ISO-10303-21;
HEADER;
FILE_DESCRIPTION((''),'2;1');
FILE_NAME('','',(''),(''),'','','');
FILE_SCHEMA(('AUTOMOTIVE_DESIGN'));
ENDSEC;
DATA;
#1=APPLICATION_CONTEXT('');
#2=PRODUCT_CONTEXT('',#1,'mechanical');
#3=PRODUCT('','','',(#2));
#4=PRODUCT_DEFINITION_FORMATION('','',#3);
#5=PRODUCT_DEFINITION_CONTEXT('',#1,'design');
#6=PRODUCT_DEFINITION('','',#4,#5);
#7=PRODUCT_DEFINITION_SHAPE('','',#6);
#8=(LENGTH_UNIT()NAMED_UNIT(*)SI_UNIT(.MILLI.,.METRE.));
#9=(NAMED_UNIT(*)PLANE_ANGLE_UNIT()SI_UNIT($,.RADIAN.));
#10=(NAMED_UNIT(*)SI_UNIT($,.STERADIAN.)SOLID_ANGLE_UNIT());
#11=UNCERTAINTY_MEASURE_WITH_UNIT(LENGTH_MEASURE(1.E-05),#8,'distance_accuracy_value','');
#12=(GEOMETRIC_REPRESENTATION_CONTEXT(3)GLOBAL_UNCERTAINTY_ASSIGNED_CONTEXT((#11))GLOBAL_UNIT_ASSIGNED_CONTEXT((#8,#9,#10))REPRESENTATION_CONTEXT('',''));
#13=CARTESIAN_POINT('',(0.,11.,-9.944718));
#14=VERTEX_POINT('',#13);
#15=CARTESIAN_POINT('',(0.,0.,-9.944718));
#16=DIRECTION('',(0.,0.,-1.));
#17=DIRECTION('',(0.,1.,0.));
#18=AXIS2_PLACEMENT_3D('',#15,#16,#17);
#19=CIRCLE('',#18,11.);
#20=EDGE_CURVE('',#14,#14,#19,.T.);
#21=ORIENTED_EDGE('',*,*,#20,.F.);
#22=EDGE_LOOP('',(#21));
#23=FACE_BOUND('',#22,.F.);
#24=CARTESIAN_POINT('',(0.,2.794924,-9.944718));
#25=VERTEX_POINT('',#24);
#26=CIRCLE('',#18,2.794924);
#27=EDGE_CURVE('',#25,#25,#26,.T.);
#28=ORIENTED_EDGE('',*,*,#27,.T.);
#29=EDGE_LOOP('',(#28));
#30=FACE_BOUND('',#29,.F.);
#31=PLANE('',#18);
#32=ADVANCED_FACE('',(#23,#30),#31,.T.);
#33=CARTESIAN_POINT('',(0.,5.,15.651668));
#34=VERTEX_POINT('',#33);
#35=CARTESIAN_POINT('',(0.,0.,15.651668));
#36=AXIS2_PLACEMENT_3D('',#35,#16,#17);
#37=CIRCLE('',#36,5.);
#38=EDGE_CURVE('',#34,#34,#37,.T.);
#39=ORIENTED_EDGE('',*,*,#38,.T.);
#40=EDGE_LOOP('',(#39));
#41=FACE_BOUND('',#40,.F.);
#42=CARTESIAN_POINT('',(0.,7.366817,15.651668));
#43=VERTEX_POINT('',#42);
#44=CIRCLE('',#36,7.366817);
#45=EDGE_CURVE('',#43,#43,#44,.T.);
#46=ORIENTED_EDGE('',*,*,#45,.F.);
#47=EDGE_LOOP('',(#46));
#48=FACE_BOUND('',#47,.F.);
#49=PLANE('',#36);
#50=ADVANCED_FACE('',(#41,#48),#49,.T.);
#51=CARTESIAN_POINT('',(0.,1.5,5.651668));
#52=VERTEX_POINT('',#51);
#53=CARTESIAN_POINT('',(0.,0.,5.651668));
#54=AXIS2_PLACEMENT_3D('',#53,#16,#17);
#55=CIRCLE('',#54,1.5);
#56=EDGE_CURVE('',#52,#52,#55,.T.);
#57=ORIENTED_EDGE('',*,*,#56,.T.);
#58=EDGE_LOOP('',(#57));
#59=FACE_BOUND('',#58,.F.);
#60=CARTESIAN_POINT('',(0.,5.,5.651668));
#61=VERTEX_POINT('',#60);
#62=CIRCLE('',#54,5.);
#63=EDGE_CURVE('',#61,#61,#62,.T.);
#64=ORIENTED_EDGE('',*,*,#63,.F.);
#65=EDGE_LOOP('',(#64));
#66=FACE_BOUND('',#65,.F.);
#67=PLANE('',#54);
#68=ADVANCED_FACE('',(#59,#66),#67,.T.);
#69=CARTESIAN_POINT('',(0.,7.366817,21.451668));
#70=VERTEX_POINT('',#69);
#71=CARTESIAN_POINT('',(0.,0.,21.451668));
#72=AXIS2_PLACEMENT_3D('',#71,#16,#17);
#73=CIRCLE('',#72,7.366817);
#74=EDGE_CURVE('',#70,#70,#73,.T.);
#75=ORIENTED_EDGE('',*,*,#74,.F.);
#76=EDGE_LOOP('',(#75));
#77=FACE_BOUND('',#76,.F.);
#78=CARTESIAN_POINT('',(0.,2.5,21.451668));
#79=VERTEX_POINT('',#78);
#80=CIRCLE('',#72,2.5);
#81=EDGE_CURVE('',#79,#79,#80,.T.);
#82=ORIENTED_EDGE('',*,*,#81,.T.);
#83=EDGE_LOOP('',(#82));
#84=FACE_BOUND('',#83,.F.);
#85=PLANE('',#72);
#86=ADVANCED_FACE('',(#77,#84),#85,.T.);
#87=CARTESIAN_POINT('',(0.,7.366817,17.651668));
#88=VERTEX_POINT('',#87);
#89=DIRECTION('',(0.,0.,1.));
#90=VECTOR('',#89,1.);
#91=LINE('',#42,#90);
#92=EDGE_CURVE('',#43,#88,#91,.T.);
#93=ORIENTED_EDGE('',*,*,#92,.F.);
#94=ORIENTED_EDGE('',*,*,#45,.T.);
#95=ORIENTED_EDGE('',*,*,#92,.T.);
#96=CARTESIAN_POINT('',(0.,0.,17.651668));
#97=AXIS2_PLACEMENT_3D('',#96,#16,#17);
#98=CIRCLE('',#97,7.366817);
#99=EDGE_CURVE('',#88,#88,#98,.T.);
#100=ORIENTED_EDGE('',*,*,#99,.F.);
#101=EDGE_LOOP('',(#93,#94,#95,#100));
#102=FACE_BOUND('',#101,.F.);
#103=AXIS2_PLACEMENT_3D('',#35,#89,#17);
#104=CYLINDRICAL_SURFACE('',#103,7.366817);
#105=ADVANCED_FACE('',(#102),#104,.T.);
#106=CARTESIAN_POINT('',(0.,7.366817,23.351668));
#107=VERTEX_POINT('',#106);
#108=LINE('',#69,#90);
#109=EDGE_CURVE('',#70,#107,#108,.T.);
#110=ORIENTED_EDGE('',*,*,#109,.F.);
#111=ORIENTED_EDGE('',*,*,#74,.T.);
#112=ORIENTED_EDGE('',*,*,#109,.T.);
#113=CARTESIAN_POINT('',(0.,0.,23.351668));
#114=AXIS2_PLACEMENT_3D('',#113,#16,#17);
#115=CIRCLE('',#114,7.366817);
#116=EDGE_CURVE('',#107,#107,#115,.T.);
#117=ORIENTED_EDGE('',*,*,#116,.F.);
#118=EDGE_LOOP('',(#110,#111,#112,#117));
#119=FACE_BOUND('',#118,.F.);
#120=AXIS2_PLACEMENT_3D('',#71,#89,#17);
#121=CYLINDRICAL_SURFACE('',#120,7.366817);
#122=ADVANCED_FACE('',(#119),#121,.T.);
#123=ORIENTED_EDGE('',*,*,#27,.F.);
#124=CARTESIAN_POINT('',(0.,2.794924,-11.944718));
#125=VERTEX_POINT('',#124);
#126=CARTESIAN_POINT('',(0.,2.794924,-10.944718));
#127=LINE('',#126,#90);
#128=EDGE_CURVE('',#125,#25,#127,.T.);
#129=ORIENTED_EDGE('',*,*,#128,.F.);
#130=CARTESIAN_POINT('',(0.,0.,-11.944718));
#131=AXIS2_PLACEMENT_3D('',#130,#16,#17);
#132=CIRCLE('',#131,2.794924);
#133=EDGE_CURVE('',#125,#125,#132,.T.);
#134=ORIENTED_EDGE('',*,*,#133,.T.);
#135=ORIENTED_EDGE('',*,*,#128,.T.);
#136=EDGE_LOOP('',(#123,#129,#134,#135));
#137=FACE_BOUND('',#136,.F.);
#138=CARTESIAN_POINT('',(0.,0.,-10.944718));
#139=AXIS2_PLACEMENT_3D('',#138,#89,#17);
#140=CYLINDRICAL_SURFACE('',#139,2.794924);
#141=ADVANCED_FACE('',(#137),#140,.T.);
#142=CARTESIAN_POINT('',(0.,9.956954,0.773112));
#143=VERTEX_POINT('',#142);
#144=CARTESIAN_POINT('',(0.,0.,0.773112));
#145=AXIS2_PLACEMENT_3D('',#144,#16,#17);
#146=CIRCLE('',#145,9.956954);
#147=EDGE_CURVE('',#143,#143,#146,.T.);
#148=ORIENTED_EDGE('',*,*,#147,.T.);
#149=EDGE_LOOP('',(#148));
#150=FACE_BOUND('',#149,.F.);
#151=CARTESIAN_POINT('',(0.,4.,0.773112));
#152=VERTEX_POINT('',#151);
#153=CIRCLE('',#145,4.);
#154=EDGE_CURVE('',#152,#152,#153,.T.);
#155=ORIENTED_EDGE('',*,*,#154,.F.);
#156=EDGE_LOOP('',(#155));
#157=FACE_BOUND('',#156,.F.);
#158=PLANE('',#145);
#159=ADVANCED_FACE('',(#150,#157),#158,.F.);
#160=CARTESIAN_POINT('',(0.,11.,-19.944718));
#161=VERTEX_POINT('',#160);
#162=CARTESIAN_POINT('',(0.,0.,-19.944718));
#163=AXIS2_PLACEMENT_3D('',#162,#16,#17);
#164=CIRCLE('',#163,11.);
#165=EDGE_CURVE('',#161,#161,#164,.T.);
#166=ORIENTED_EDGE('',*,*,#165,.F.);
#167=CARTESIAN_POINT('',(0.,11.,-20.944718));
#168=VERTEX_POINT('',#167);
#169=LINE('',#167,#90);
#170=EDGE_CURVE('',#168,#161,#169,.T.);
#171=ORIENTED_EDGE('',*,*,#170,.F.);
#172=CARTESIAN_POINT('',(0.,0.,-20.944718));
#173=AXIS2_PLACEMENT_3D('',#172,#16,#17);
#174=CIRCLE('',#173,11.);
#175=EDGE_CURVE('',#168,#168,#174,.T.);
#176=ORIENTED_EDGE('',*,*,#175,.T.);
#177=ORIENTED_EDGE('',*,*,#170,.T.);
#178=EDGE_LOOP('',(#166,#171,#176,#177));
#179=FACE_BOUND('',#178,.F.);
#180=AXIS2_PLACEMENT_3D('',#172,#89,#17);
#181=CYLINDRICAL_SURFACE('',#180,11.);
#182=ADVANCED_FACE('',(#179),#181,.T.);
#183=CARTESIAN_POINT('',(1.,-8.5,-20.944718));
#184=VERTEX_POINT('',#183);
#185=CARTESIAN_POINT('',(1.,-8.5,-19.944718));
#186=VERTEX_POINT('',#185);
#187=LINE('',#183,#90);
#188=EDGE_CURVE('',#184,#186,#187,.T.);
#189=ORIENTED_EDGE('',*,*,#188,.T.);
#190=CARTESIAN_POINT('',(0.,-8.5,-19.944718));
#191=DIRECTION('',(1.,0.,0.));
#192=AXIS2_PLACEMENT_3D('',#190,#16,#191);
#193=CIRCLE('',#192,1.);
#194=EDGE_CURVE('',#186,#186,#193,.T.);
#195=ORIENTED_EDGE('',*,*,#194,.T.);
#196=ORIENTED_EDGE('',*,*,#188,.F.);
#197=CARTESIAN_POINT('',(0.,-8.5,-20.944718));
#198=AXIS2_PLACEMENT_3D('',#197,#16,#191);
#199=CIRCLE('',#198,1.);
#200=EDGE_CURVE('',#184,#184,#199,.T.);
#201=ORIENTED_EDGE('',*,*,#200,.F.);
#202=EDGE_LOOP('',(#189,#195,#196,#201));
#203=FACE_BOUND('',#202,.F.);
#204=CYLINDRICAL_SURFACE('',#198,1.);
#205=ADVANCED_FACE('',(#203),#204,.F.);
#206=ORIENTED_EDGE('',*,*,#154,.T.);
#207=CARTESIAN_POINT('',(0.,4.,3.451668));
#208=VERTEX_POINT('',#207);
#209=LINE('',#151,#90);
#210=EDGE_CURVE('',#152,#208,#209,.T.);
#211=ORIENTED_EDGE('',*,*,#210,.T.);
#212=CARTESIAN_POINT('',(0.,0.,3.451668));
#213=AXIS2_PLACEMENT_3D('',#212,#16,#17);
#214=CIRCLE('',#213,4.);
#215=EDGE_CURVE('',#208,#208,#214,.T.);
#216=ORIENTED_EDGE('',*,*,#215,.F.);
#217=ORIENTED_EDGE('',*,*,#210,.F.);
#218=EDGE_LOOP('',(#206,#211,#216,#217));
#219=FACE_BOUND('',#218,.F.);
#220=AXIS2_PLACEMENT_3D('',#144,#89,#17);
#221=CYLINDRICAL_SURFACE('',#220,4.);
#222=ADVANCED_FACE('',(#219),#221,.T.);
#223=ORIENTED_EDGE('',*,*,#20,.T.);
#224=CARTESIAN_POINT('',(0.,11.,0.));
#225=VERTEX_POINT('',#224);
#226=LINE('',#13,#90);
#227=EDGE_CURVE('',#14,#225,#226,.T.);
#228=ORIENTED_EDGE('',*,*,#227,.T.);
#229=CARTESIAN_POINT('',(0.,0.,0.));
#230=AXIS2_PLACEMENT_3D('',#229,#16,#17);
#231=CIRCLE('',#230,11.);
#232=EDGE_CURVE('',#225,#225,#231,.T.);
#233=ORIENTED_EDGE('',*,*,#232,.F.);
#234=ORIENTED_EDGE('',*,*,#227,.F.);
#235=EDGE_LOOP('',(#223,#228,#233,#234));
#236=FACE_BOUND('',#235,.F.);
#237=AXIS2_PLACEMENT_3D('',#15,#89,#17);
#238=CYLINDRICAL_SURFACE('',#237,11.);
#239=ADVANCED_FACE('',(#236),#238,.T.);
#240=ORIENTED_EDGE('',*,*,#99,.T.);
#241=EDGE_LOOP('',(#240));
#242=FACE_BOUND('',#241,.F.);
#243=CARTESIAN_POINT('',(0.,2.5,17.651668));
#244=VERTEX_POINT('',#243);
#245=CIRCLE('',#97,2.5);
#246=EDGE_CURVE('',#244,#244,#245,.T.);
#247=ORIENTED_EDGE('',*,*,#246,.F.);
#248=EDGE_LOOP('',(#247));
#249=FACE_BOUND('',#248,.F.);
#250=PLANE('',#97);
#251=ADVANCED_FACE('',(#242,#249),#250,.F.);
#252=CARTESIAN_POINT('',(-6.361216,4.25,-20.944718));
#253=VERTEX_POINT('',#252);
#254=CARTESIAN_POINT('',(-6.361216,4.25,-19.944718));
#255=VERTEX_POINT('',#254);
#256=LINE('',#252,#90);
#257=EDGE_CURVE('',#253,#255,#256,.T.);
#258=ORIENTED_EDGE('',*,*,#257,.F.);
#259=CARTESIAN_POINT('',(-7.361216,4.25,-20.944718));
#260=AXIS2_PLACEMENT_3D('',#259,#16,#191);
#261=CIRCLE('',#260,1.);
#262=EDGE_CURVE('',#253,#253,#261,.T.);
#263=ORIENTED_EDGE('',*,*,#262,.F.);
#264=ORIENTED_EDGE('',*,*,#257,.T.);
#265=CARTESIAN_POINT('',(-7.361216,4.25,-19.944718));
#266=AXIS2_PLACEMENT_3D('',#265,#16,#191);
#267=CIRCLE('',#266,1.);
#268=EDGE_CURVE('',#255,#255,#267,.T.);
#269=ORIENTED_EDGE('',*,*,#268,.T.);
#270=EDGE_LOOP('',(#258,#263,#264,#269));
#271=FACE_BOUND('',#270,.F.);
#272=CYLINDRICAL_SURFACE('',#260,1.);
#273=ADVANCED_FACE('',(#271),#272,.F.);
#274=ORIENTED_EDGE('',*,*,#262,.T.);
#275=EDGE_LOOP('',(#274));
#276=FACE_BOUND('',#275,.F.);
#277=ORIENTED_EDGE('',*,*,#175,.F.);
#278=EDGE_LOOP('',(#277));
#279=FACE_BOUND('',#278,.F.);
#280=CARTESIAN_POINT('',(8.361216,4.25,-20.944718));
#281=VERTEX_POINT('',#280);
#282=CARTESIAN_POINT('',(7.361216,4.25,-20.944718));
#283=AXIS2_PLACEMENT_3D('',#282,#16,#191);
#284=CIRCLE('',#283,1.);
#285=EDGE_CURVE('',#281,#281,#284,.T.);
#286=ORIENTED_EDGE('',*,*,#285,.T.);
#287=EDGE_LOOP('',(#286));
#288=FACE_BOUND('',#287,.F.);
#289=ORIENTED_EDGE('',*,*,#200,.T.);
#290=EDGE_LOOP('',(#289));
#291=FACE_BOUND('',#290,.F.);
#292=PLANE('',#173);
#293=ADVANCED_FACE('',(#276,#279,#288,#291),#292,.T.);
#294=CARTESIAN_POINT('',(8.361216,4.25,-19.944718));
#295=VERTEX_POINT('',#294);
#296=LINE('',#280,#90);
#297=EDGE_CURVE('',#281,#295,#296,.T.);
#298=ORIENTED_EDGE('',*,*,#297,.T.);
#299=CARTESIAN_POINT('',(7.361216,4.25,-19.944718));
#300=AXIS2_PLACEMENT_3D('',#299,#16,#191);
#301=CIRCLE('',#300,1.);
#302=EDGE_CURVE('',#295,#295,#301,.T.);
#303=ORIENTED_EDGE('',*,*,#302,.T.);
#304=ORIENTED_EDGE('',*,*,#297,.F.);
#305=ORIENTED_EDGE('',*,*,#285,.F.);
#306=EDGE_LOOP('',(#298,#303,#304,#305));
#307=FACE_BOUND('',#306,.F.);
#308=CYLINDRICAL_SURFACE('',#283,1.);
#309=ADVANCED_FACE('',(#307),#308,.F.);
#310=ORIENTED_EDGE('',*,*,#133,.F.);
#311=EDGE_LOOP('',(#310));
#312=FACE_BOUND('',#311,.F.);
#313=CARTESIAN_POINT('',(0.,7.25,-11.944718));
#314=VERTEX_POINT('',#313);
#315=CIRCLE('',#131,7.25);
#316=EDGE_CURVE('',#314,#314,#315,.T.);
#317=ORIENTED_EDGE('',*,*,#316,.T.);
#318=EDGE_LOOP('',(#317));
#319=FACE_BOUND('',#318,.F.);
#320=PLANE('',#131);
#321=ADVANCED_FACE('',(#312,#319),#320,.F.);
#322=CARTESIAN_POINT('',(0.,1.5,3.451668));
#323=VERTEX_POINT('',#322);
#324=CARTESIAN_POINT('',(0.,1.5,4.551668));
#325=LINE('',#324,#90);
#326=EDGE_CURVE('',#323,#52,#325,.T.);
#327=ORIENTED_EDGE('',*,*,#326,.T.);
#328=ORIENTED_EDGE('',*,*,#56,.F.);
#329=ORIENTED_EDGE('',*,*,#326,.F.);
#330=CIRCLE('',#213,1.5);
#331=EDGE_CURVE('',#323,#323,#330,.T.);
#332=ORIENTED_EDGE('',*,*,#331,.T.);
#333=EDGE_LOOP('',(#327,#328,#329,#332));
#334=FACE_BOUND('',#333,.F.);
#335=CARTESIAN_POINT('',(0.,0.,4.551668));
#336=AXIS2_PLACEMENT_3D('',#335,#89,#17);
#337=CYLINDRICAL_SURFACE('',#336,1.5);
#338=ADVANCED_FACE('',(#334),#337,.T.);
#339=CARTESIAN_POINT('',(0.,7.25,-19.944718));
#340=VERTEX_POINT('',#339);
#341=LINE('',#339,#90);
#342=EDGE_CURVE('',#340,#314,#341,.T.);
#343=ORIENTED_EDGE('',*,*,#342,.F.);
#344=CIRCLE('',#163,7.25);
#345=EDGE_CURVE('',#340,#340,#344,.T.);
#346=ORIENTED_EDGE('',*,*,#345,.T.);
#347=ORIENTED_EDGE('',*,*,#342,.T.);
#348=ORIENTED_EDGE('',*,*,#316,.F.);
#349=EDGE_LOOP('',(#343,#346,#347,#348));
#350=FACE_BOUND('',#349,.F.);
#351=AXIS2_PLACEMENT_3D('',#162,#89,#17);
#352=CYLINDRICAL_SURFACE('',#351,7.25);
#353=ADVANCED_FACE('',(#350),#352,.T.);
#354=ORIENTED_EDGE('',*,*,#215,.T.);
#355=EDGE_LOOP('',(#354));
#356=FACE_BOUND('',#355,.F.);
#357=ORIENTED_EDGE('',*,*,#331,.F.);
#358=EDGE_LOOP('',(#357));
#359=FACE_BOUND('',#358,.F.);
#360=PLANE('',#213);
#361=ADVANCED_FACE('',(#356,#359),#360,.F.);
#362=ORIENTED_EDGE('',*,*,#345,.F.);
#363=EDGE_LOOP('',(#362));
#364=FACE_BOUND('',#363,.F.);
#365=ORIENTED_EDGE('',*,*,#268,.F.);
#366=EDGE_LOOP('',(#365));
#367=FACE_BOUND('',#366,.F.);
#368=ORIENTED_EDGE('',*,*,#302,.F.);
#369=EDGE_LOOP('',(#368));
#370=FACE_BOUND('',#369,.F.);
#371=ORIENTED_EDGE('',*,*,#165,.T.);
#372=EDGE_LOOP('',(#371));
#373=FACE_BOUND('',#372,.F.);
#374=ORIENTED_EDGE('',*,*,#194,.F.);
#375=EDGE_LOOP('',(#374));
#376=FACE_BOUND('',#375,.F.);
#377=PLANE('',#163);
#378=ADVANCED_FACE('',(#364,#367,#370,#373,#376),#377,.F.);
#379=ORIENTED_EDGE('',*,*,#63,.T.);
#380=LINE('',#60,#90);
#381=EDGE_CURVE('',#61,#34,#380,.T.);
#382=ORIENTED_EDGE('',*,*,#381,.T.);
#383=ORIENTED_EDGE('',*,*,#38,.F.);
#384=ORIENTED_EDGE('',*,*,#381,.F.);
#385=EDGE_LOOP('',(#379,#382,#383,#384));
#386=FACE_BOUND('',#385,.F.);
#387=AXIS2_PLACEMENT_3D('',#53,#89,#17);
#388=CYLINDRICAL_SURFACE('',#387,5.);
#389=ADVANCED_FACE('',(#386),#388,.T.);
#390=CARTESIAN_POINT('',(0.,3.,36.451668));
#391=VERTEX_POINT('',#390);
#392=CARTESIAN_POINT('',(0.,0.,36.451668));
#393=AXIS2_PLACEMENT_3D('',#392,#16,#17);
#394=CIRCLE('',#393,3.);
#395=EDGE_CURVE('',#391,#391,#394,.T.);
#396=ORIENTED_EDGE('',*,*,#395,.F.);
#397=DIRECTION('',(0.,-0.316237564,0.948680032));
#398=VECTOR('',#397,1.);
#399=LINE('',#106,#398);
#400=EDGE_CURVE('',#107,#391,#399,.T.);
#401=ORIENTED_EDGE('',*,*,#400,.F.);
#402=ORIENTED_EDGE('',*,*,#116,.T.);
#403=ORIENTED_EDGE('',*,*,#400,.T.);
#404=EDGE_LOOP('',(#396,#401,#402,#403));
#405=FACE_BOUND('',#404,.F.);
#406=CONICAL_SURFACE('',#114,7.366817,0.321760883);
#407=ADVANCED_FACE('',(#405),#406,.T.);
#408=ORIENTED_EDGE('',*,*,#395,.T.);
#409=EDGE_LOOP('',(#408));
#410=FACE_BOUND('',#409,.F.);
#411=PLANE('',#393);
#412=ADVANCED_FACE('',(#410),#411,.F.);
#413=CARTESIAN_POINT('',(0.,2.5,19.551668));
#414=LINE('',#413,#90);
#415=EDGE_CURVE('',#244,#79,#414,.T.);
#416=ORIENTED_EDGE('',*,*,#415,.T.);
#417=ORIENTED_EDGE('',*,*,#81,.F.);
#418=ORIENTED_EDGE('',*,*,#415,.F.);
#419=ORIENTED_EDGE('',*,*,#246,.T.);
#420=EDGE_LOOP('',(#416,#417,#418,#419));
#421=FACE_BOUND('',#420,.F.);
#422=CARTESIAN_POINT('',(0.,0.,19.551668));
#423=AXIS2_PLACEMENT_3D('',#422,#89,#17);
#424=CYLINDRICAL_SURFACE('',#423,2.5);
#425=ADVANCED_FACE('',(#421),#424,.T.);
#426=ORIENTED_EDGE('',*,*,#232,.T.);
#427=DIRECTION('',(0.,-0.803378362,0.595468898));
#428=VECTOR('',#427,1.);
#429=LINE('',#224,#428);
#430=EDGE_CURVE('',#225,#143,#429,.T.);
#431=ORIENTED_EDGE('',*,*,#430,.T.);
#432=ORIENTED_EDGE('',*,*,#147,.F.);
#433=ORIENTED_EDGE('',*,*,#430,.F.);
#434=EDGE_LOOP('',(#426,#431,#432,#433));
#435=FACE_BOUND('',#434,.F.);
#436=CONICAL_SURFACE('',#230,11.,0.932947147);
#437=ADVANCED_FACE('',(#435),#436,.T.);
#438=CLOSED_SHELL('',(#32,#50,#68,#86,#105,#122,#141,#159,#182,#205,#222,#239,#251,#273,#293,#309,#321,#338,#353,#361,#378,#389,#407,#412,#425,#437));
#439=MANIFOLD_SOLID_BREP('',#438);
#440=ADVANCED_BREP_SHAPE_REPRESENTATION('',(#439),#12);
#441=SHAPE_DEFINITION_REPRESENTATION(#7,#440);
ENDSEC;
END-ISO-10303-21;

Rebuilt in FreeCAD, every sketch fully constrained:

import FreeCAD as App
import Part
import Sketcher

V = App.Vector


def add_polygon(sketch, points):
    """Adds a closed chain of lines whose ends are joined by coincident constraints."""
    first, n = sketch.GeometryCount, len(points)
    for a, b in zip(points, points[1:] + points[:1]):
        sketch.addGeometry(Part.LineSegment(App.Vector(*a, 0), App.Vector(*b, 0)), False)
    for i in range(n):
        sketch.addConstraint(Sketcher.Constraint("Coincident", first + i, 2, first + (i + 1) % n, 1))

doc = App.newDocument("Part")
body = doc.addObject("PartDesign::Body", "Body")

sketch1 = doc.addObject("Sketcher::SketchObject", "Sketch")
body.addObject(sketch1)
sketch1.AttachmentSupport = (doc.YZ_Plane, [""])
sketch1.MapMode = "FlatFace"
add_polygon(sketch1, [(7.4, 23.4), (3, 36.5), (0, 36.5), (0, -20.9), (11, -20.9), (11, -19.9), (7.2, -19.9), (7.2, -11.9), (2.8, -11.9), (2.8, -9.9), (11, -9.9), (11, 0), (10, 0.8), (4, 0.8), (4, 3.5), (1.5, 3.5), (1.5, 5.7), (5, 5.7), (5, 15.7), (7.4, 15.7), (7.4, 17.7), (2.5, 17.7), (2.5, 21.5), (7.4, 21.5)])
sketch1.addConstraint([
    Sketcher.Constraint("Horizontal", 1),
    Sketcher.Constraint("Vertical", 2),
    Sketcher.Constraint("Horizontal", 3),
    Sketcher.Constraint("Vertical", 4),
    Sketcher.Constraint("Horizontal", 5),
    Sketcher.Constraint("Vertical", 6),
    Sketcher.Constraint("Horizontal", 7),
    Sketcher.Constraint("Vertical", 8),
    Sketcher.Constraint("Horizontal", 9),
    Sketcher.Constraint("Vertical", 10),
    Sketcher.Constraint("Horizontal", 12),
    Sketcher.Constraint("Vertical", 13),
    Sketcher.Constraint("Horizontal", 14),
    Sketcher.Constraint("Vertical", 15),
    Sketcher.Constraint("Horizontal", 16),
    Sketcher.Constraint("Vertical", 17),
    Sketcher.Constraint("Horizontal", 18),
    Sketcher.Constraint("Vertical", 19),
    Sketcher.Constraint("Horizontal", 20),
    Sketcher.Constraint("Vertical", 21),
    Sketcher.Constraint("Horizontal", 22),
    Sketcher.Constraint("Vertical", 23),
    Sketcher.Constraint("PointOnObject", 1, 2, -2),
    Sketcher.Constraint("PointOnObject", 10, 2, -1),
    Sketcher.Constraint("Vertical", 4, 2, 9, 2),
    Sketcher.Constraint("Vertical", 19, 2, 22, 2),
    Sketcher.Constraint("Equal", 8, 19),
    Sketcher.Constraint("DistanceX", 1, 2, 1, 1, 3.0),
    Sketcher.Constraint("DistanceX", 3, 1, 3, 2, 11.0),
    Sketcher.Constraint("DistanceY", 4, 1, 4, 2, 1.0),
    Sketcher.Constraint("DistanceY", 6, 1, 6, 2, 8.0),
    Sketcher.Constraint("DistanceY", 8, 1, 8, 2, 2.0),
    Sketcher.Constraint("DistanceY", 17, 1, 17, 2, 10.0),
    Sketcher.Constraint("DistanceX", 14, 2, 14, 1, 2.5),
    Sketcher.Constraint("DistanceX", 16, 1, 16, 2, 3.5),
    Sketcher.Constraint("DistanceY", 15, 1, 15, 2, 2.2),
    Sketcher.Constraint("DistanceY", 21, 1, 21, 2, 3.8),
    Sketcher.Constraint("DistanceY", 23, 1, 23, 2, 1.9),
    Sketcher.Constraint("DistanceX", -1, 1, 12, 2, 4.0),
    Sketcher.Constraint("DistanceX", 15, 2, 20, 2, 1.0),
    Sketcher.Constraint("DistanceY", 21, 2, 0, 2, 15.0),
    Sketcher.Constraint("DistanceX", 5, 2, 5, 1, 3.75),
    Sketcher.Constraint("Distance", 0, 13.80866),
    Sketcher.Constraint("DistanceX", 7, 2, 7, 1, 4.455076),
    Sketcher.Constraint("DistanceX", 12, 2, 12, 1, 5.956954),
    Sketcher.Constraint("DistanceY", 2, 2, 2, 1, 57.396386),
    Sketcher.Constraint("DistanceY", 10, 1, 10, 2, 9.944718),
    Sketcher.Constraint("DistanceY", 13, 1, 13, 2, 2.678556),
])
revolution = doc.addObject("PartDesign::Revolution", "Revolution")
body.addObject(revolution)
revolution.Profile = sketch1
revolution.ReferenceAxis = (sketch1, ["V_Axis"])
revolution.Angle = 360

sketch2 = doc.addObject("Sketcher::SketchObject", "Sketch001")
body.addObject(sketch2)
sketch2.AttachmentSupport = (doc.XY_Plane, [""])
sketch2.MapMode = "FlatFace"
sketch2.AttachmentOffset = App.Placement(V(0, 0, -20.944718), App.Rotation())
sketch2.addGeometry([
    Part.Circle(V(0, -8.5, 0), V(0, 0, 1), 1),
    Part.Circle(V(-7.4, 4.2, 0), V(0, 0, 1), 1),
    Part.Circle(V(7.4, 4.2, 0), V(0, 0, 1), 1),
], False)
sketch2.addConstraint([
    Sketcher.Constraint("Equal", 0, 1),
    Sketcher.Constraint("Equal", 1, 2),
    Sketcher.Constraint("Symmetric", 1, 3, 2, 3, -2),
    Sketcher.Constraint("PointOnObject", 0, 3, -2),
    Sketcher.Constraint("Diameter", 0, 2.0),
    Sketcher.Constraint("DistanceY", 0, 3, -1, 1, 8.5),
    Sketcher.Constraint("DistanceY", -1, 1, 1, 3, 4.25),
    Sketcher.Constraint("DistanceX", 1, 3, -1, 1, 7.361216),
])
pocket1 = doc.addObject("PartDesign::Pocket", "Pocket")
body.addObject(pocket1)
pocket1.Profile = sketch2
pocket1.Length = 2
pocket1.Reversed = True

doc.recompute()
